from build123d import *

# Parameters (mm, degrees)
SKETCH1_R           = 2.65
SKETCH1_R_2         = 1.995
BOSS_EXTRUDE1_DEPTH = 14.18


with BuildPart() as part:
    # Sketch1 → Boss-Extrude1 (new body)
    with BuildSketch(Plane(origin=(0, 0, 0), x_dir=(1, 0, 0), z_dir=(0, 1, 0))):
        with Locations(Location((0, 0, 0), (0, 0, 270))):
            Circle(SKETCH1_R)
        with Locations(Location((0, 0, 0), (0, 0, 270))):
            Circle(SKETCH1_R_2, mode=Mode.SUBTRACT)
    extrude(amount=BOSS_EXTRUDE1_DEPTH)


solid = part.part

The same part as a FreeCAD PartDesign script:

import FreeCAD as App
import Part
import Sketcher
from FreeCAD import Vector
Q = App.Units.Quantity

doc = App.newDocument("Part")
body = doc.addObject("PartDesign::Body", "Body")

# Sketch on XZ plane
sketch1 = doc.addObject("Sketcher::SketchObject", "Sketch")
body.addObject(sketch1)
sketch1.AttachmentSupport = (doc.XZ_Plane, [""])
sketch1.MapMode = "FlatFace"
sketch1.addGeometry(Part.Circle(Vector(0, 0, 0), Vector(0, 0, 1), 2.6), False)
sketch1.addGeometry(Part.Circle(Vector(0, 0, 0), Vector(0, 0, 1), 2), False)
sketch1.addConstraint(Sketcher.Constraint("Coincident", 0, 3, -1, 1))
sketch1.addConstraint(Sketcher.Constraint("Coincident", 1, 3, -1, 1))
sketch1.addConstraint(Sketcher.Constraint("Diameter", 0, Q("5.3 mm")))
sketch1.addConstraint(Sketcher.Constraint("Diameter", 1, Q("3.99 mm")))
pad1 = doc.addObject("PartDesign::Pad", "Pad")
body.addObject(pad1)
pad1.Profile = sketch1
pad1.Length = 14.18
pad1.Reversed = True

doc.recompute()
